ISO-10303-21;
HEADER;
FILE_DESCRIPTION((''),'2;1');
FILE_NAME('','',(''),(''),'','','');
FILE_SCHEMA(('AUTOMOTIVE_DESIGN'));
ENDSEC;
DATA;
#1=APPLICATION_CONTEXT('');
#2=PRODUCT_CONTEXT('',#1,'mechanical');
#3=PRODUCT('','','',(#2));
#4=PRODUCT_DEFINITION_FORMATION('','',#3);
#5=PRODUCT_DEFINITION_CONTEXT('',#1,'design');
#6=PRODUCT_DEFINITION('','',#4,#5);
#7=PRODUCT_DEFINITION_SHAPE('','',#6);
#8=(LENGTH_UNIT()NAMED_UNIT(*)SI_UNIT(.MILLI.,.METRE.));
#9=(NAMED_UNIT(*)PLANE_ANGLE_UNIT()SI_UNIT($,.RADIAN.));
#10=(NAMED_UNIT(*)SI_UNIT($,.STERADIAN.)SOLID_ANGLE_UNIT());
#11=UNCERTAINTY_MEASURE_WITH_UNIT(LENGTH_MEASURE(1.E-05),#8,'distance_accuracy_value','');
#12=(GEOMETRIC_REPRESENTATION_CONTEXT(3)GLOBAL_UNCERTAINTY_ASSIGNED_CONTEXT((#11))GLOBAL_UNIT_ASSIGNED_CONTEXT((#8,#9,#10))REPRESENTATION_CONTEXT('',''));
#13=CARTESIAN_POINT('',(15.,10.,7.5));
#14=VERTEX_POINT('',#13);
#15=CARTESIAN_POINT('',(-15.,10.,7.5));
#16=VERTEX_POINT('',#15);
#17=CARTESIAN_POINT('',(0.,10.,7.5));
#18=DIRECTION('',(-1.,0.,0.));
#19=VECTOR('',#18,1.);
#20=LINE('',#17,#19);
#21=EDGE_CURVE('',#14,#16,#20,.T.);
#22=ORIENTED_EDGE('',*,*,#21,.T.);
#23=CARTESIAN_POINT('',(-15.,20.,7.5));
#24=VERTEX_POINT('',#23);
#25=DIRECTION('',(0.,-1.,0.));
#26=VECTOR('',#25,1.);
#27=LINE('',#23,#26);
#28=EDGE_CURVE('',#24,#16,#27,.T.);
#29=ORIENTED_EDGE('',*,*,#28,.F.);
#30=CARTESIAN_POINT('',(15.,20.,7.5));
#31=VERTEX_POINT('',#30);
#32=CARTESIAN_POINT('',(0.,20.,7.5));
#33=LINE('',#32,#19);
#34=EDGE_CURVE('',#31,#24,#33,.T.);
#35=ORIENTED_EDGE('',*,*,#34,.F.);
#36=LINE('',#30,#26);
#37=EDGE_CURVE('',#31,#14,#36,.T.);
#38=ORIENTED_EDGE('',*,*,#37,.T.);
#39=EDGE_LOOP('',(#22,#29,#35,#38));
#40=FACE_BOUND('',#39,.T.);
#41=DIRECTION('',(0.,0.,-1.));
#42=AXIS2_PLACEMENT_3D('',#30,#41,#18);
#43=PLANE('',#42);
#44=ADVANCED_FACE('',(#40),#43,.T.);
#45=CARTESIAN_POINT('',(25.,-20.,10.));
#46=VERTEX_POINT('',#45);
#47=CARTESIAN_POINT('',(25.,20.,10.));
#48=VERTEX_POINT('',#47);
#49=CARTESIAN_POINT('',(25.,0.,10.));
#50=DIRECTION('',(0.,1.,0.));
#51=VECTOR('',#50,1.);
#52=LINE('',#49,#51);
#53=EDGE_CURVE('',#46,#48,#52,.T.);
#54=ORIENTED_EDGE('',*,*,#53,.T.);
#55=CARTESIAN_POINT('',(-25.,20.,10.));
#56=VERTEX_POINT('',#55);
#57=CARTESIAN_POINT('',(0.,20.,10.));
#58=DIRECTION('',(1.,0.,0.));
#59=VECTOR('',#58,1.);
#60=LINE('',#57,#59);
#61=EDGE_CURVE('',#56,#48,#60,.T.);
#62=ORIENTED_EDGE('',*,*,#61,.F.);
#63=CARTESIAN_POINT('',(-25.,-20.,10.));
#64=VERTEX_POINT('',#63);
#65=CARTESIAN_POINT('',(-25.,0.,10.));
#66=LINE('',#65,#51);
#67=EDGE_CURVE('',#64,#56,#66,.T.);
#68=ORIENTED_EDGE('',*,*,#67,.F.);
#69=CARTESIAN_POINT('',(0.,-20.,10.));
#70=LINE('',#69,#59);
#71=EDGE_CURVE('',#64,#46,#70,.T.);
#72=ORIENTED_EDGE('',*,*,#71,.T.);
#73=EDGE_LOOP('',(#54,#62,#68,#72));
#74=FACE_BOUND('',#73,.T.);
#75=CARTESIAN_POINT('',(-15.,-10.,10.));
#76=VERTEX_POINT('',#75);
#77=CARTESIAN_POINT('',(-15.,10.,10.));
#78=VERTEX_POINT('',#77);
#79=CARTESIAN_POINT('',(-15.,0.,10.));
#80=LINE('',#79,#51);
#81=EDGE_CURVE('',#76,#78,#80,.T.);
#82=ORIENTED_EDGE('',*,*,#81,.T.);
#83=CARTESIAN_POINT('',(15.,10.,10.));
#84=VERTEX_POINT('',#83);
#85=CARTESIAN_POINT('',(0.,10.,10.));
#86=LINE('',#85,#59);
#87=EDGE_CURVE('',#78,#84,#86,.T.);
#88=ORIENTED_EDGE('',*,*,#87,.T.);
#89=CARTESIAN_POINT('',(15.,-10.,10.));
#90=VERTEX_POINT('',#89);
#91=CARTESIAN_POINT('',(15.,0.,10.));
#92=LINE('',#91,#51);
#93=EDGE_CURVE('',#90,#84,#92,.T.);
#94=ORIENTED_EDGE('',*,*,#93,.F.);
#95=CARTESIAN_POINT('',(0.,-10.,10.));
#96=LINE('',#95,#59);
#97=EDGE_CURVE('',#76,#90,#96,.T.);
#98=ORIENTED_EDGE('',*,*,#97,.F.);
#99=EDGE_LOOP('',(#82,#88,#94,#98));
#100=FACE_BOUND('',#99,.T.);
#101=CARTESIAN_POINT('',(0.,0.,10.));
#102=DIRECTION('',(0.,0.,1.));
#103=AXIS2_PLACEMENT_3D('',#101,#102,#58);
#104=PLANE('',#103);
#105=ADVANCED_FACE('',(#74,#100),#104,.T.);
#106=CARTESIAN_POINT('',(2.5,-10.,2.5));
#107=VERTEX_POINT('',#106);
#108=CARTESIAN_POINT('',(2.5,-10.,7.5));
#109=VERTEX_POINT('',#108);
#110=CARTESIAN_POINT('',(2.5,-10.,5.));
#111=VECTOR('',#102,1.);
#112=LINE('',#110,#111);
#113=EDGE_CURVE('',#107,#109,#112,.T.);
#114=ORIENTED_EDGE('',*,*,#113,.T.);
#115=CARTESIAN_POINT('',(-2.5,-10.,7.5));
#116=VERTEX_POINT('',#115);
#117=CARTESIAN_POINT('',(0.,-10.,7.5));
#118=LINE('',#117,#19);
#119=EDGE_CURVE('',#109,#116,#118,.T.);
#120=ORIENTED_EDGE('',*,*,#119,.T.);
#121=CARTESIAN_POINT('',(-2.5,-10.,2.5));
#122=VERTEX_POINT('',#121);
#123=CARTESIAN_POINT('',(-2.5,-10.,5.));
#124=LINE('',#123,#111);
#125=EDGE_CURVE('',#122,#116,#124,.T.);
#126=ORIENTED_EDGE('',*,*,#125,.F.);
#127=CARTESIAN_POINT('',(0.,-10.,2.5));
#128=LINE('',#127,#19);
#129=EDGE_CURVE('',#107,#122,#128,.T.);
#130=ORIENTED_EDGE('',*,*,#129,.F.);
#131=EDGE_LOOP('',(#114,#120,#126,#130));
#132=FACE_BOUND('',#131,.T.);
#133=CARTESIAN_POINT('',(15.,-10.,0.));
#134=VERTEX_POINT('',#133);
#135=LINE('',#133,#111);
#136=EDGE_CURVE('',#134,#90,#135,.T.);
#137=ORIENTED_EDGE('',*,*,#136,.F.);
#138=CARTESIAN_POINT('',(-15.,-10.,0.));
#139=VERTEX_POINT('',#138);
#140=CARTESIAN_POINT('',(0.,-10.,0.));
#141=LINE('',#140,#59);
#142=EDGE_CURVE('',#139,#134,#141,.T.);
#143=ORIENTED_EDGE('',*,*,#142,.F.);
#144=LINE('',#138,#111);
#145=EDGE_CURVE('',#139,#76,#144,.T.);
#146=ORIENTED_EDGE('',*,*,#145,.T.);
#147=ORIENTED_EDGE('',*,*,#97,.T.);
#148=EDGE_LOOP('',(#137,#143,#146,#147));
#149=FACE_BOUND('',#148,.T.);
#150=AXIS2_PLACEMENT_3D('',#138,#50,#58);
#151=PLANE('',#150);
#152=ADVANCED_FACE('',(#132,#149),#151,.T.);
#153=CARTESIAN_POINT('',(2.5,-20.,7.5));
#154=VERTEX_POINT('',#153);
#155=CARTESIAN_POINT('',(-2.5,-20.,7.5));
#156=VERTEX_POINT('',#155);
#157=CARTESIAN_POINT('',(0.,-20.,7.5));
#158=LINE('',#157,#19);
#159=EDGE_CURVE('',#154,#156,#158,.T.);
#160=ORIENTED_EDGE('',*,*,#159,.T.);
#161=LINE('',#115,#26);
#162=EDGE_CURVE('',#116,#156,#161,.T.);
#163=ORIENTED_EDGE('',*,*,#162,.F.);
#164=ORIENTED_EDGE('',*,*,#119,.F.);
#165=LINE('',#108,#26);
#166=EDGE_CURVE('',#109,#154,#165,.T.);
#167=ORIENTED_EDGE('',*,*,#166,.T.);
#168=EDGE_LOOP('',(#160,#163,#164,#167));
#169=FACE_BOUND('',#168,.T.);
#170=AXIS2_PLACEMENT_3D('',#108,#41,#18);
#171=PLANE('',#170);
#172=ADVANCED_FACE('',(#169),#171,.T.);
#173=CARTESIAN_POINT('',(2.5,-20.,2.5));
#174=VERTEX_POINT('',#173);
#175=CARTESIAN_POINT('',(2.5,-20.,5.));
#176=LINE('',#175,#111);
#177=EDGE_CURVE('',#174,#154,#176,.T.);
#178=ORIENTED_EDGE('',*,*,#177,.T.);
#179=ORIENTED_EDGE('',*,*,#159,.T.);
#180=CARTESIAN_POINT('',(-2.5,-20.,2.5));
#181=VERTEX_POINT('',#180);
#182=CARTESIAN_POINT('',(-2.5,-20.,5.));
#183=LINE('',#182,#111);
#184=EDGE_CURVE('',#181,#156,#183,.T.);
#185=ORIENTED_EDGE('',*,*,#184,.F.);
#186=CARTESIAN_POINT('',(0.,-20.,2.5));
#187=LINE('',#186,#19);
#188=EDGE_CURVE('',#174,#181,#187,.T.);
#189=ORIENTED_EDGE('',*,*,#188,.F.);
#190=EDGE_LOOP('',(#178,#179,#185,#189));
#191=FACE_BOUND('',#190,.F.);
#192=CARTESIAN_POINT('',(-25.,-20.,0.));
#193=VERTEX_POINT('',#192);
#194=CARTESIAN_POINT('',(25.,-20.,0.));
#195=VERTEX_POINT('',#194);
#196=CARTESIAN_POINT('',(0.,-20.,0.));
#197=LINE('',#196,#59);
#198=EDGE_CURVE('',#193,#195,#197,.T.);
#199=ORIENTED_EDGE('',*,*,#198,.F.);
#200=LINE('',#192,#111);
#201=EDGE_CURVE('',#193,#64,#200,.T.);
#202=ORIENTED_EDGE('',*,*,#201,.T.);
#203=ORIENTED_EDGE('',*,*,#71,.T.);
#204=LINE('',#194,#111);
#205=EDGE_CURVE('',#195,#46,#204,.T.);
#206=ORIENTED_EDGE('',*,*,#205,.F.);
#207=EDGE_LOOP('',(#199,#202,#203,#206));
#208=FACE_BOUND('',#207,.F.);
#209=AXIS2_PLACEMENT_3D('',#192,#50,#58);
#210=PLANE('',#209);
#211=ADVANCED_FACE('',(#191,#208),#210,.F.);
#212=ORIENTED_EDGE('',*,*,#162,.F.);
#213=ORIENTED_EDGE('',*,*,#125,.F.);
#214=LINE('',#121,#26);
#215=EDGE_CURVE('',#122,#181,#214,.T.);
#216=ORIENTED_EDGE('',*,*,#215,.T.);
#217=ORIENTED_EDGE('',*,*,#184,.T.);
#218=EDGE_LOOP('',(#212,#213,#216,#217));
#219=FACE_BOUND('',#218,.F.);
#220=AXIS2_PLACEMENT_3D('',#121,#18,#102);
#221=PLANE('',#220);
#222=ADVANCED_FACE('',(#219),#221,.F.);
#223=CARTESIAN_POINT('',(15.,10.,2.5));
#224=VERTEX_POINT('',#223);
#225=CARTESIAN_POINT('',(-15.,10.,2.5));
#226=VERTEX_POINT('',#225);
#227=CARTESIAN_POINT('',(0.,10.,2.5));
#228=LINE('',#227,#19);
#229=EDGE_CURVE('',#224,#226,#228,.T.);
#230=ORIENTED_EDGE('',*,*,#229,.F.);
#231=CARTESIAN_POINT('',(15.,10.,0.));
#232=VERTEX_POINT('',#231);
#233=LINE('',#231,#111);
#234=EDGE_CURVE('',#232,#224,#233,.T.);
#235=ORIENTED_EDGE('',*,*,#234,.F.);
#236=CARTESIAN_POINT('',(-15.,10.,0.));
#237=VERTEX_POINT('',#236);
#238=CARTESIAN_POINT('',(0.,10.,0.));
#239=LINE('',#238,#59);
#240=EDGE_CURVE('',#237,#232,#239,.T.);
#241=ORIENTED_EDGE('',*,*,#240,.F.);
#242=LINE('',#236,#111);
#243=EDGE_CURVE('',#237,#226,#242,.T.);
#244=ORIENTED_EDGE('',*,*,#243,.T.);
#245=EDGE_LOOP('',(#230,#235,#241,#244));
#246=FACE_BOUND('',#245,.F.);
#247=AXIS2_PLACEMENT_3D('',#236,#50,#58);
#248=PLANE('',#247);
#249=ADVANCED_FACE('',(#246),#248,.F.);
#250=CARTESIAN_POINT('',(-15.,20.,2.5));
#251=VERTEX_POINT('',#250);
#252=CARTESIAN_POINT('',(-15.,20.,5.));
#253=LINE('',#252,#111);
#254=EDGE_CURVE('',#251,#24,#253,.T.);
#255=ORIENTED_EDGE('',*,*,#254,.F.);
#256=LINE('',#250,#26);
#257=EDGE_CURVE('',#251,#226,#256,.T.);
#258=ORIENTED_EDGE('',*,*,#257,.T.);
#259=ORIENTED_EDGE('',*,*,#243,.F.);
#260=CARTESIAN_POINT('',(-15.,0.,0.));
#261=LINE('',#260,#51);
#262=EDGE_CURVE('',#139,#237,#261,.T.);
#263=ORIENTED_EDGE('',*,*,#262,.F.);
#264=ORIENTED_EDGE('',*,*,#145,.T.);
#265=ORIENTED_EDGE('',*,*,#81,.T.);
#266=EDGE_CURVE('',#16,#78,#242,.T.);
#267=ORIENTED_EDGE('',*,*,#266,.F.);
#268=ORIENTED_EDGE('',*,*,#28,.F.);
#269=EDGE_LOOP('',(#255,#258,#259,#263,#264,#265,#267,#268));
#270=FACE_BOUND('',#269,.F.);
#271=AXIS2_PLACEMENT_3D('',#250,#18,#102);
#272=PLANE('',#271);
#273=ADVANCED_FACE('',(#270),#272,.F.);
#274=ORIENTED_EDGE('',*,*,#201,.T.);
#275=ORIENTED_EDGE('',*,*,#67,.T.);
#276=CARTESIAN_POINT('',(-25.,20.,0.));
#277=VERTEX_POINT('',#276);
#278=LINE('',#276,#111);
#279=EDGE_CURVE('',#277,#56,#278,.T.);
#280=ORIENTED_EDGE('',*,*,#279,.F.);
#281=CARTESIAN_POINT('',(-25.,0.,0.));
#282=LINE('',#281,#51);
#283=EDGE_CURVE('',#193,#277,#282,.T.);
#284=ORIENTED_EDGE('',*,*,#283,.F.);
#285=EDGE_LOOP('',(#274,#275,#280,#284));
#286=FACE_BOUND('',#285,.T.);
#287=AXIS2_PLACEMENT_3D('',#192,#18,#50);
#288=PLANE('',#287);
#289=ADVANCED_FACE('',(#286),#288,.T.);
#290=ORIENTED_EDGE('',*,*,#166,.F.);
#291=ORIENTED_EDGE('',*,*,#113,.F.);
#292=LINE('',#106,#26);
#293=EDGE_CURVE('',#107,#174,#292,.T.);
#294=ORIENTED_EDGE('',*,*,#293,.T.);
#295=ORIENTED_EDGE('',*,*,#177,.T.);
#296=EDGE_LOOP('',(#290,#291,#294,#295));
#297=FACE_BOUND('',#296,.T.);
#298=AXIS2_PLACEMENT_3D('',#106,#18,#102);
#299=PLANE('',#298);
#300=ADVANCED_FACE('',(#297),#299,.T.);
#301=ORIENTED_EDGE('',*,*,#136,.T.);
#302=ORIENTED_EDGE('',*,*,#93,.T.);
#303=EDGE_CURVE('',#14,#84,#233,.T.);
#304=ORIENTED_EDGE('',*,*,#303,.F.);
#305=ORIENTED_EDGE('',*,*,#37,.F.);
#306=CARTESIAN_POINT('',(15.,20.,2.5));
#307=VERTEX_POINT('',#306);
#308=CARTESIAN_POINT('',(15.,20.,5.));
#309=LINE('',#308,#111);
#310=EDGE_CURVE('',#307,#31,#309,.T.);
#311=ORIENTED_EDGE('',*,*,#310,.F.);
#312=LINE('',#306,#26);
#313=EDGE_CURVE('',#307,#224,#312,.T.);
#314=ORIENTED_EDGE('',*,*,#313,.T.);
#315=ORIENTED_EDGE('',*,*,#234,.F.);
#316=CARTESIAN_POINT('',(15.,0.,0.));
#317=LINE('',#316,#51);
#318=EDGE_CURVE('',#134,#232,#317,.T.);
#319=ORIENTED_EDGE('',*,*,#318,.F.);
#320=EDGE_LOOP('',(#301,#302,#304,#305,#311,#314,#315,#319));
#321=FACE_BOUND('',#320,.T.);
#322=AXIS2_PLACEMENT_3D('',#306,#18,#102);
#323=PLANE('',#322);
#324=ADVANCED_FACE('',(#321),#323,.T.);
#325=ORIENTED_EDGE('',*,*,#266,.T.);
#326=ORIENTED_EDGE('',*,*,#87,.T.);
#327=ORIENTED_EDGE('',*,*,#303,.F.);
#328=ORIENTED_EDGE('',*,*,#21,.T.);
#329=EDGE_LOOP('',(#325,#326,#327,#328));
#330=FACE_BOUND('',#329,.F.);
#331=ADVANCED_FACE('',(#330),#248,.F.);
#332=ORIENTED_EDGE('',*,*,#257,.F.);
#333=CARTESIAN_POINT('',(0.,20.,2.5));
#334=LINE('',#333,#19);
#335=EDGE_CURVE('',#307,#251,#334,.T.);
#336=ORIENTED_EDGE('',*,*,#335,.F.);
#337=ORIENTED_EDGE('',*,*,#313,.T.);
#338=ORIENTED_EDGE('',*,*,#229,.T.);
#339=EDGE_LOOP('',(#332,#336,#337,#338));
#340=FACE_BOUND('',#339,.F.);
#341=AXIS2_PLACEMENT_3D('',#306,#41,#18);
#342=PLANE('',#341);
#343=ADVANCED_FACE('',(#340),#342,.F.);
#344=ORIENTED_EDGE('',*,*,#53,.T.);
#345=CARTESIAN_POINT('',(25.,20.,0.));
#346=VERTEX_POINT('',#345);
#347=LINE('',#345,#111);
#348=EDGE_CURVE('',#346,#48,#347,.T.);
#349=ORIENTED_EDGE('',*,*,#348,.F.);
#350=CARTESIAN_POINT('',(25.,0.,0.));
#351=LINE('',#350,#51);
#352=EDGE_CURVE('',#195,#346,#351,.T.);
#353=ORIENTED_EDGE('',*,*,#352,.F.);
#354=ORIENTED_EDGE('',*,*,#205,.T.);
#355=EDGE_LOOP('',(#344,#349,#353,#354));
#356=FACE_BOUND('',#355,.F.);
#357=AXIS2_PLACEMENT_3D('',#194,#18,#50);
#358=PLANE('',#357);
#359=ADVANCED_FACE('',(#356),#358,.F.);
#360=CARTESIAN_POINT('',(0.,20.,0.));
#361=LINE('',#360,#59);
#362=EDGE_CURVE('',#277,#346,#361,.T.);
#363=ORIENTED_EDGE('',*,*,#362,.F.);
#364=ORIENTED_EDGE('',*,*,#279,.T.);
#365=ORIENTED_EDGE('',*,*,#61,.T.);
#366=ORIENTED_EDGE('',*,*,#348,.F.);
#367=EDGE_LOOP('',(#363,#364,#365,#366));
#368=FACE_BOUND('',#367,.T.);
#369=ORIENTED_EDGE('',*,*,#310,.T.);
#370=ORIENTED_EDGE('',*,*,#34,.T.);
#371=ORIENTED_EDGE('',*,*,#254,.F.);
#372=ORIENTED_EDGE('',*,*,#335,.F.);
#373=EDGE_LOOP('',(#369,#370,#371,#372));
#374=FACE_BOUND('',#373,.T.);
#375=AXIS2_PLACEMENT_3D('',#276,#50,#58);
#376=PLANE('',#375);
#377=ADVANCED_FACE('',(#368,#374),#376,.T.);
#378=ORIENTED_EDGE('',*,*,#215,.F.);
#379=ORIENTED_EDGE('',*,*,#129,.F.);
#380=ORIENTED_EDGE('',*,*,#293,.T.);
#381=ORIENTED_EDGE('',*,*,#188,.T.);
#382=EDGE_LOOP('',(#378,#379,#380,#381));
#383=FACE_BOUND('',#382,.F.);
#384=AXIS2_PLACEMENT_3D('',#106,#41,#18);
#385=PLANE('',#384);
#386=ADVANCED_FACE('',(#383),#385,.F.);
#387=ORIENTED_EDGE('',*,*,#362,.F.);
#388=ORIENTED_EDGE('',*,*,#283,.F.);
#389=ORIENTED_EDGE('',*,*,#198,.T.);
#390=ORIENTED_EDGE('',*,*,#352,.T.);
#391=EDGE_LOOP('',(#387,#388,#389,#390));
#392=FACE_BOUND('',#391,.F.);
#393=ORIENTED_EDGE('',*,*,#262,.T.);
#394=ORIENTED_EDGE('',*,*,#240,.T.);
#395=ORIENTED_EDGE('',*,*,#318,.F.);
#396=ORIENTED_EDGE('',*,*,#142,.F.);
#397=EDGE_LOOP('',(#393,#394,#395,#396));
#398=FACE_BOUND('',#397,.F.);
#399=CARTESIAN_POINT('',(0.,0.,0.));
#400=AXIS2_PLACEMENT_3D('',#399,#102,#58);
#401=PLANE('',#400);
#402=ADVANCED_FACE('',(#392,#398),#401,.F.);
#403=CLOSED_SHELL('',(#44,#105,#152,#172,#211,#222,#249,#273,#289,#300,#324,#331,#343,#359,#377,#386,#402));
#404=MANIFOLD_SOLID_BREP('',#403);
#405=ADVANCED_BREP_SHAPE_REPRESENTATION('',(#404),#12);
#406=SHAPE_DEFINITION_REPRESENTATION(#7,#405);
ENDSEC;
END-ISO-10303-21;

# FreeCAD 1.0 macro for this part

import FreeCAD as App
import Part
import Sketcher

V = App.Vector
Q = App.Units.Quantity

doc = App.newDocument("Part")
body = doc.addObject("PartDesign::Body", "Body")

sketch1 = body.newObject("Sketcher::SketchObject", "Sketch")
sketch1.AttachmentSupport = (doc.getObject("XY_Plane"), [""])
sketch1.MapMode = "FlatFace"
sketch1.addGeometry(Part.LineSegment(V(-25, 20, 0), V(-25, -20, 0)), False)
sketch1.addGeometry(Part.LineSegment(V(-25, -20, 0), V(25, -20, 0)), False)
sketch1.addGeometry(Part.LineSegment(V(25, -20, 0), V(25, 20, 0)), False)
sketch1.addGeometry(Part.LineSegment(V(25, 20, 0), V(-25, 20, 0)), False)
sketch1.addGeometry(Part.LineSegment(V(15, -10, 0), V(-15, -10, 0)), False)
sketch1.addGeometry(Part.LineSegment(V(-15, -10, 0), V(-15, 10, 0)), False)
sketch1.addGeometry(Part.LineSegment(V(-15, 10, 0), V(15, 10, 0)), False)
sketch1.addGeometry(Part.LineSegment(V(15, 10, 0), V(15, -10, 0)), False)
sketch1.addConstraint(Sketcher.Constraint("Coincident", 0, 2, 1, 1))
sketch1.addConstraint(Sketcher.Constraint("Coincident", 1, 2, 2, 1))
sketch1.addConstraint(Sketcher.Constraint("Coincident", 2, 2, 3, 1))
sketch1.addConstraint(Sketcher.Constraint("Coincident", 3, 2, 0, 1))
sketch1.addConstraint(Sketcher.Constraint("Coincident", 4, 2, 5, 1))
sketch1.addConstraint(Sketcher.Constraint("Coincident", 5, 2, 6, 1))
sketch1.addConstraint(Sketcher.Constraint("Coincident", 6, 2, 7, 1))
sketch1.addConstraint(Sketcher.Constraint("Coincident", 7, 2, 4, 1))
sketch1.addConstraint(Sketcher.Constraint("Vertical", 0))
sketch1.addConstraint(Sketcher.Constraint("Horizontal", 1))
sketch1.addConstraint(Sketcher.Constraint("Vertical", 2))
sketch1.addConstraint(Sketcher.Constraint("Horizontal", 3))
sketch1.addConstraint(Sketcher.Constraint("Horizontal", 4))
sketch1.addConstraint(Sketcher.Constraint("Vertical", 5))
sketch1.addConstraint(Sketcher.Constraint("Horizontal", 6))
sketch1.addConstraint(Sketcher.Constraint("Vertical", 7))
sketch1.addConstraint(Sketcher.Constraint("Symmetric", 0, 2, 2, 2, -1, 1))
sketch1.addConstraint(Sketcher.Constraint("Symmetric", 4, 2, 6, 2, -1, 1))
sketch1.addConstraint(Sketcher.Constraint("DistanceX", 1, 1, 1, 2, Q("50 mm")))
sketch1.addConstraint(Sketcher.Constraint("DistanceX", 4, 2, 4, 1, Q("30 mm")))
sketch1.addConstraint(Sketcher.Constraint("DistanceY", 0, 2, 0, 1, Q("40 mm")))
sketch1.addConstraint(Sketcher.Constraint("DistanceY", 5, 1, 5, 2, Q("20 mm")))
pad1 = body.newObject("PartDesign::Pad", "Pad")
pad1.Profile = sketch1
pad1.Length = 10

sketch2 = body.newObject("Sketcher::SketchObject", "Sketch001")
sketch2.AttachmentSupport = (doc.getObject("XZ_Plane"), [""])
sketch2.MapMode = "FlatFace"
sketch2.AttachmentOffset = App.Placement(V(0, 0, -20), App.Rotation())
sketch2.addGeometry(Part.LineSegment(V(15, 7.5, 0), V(15, 2.5, 0)), False)
sketch2.addGeometry(Part.LineSegment(V(15, 2.5, 0), V(-15, 2.5, 0)), False)
sketch2.addGeometry(Part.LineSegment(V(-15, 2.5, 0), V(-15, 7.5, 0)), False)
sketch2.addGeometry(Part.LineSegment(V(-15, 7.5, 0), V(15, 7.5, 0)), False)
sketch2.addConstraint(Sketcher.Constraint("Coincident", 0, 2, 1, 1))
sketch2.addConstraint(Sketcher.Constraint("Coincident", 1, 2, 2, 1))
sketch2.addConstraint(Sketcher.Constraint("Coincident", 2, 2, 3, 1))
sketch2.addConstraint(Sketcher.Constraint("Coincident", 3, 2, 0, 1))
sketch2.addConstraint(Sketcher.Constraint("Vertical", 0))
sketch2.addConstraint(Sketcher.Constraint("Horizontal", 1))
sketch2.addConstraint(Sketcher.Constraint("Vertical", 2))
sketch2.addConstraint(Sketcher.Constraint("Horizontal", 3))
sketch2.addConstraint(Sketcher.Constraint("DistanceX", 1, 2, 1, 1, Q("30 mm")))
sketch2.addConstraint(Sketcher.Constraint("DistanceY", 0, 2, 0, 1, Q("5 mm")))
sketch2.addConstraint(Sketcher.Constraint("DistanceX", -1, 1, 0, 2, Q("15 mm")))
sketch2.addConstraint(Sketcher.Constraint("DistanceY", -1, 1, 0, 2, Q("2.5 mm")))
pocket1 = body.newObject("PartDesign::Pocket", "Pocket")
pocket1.Profile = sketch2
pocket1.Length = 25
pocket1.Reversed = True

sketch3 = body.newObject("Sketcher::SketchObject", "Sketch002")
sketch3.AttachmentSupport = (doc.getObject("XZ_Plane"), [""])
sketch3.MapMode = "FlatFace"
sketch3.AttachmentOffset = App.Placement(V(0, 0, 10), App.Rotation())
sketch3.addGeometry(Part.LineSegment(V(2.5, 7.5, 0), V(2.5, 2.5, 0)), False)
sketch3.addGeometry(Part.LineSegment(V(2.5, 2.5, 0), V(-2.5, 2.5, 0)), False)
sketch3.addGeometry(Part.LineSegment(V(-2.5, 2.5, 0), V(-2.5, 7.5, 0)), False)
sketch3.addGeometry(Part.LineSegment(V(-2.5, 7.5, 0), V(2.5, 7.5, 0)), False)
sketch3.addConstraint(Sketcher.Constraint("Coincident", 0, 2, 1, 1))
sketch3.addConstraint(Sketcher.Constraint("Coincident", 1, 2, 2, 1))
sketch3.addConstraint(Sketcher.Constraint("Coincident", 2, 2, 3, 1))
sketch3.addConstraint(Sketcher.Constraint("Coincident", 3, 2, 0, 1))
sketch3.addConstraint(Sketcher.Constraint("Vertical", 0))
sketch3.addConstraint(Sketcher.Constraint("Horizontal", 1))
sketch3.addConstraint(Sketcher.Constraint("Vertical", 2))
sketch3.addConstraint(Sketcher.Constraint("Horizontal", 3))
sketch3.addConstraint(Sketcher.Constraint("Equal", 3, 0))
sketch3.addConstraint(Sketcher.Constraint("DistanceX", 1, 2, 1, 1, Q("5 mm")))
sketch3.addConstraint(Sketcher.Constraint("DistanceX", -1, 1, 0, 2, Q("2.5 mm")))
sketch3.addConstraint(Sketcher.Constraint("DistanceY", -1, 1, 0, 2, Q("2.5 mm")))
pocket2 = body.newObject("PartDesign::Pocket", "Pocket001")
pocket2.Profile = sketch3
pocket2.Type = "ThroughAll"
pocket2.Reversed = True

doc.recompute()
